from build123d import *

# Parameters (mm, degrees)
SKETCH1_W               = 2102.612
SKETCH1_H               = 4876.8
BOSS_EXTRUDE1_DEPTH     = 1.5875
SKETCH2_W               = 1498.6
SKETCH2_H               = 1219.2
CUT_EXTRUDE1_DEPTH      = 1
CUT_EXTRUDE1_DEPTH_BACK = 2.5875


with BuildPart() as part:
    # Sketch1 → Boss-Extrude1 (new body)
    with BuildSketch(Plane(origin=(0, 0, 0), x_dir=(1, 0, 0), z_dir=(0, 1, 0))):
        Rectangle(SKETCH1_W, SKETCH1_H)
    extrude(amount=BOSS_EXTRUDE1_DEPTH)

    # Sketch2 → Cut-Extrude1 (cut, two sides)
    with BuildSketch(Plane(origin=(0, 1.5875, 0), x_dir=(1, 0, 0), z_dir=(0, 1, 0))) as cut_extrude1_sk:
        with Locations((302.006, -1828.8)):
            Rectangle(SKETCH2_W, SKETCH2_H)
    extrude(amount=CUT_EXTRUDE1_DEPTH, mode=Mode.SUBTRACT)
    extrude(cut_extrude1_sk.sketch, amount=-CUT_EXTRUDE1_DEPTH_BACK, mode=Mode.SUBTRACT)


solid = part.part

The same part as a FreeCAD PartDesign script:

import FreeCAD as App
import Part
import Sketcher
from FreeCAD import Vector
Q = App.Units.Quantity

doc = App.newDocument("Part")
body = doc.addObject("PartDesign::Body", "Body")

# Sketch on XZ plane
sketch1 = doc.addObject("Sketcher::SketchObject", "Sketch")
body.addObject(sketch1)
sketch1.AttachmentSupport = (doc.XZ_Plane, [""])
sketch1.MapMode = "FlatFace"
sketch1.addGeometry(Part.LineSegment(Vector(-1051.306, -2438.4, 0), Vector(-1051.306, 2438.4, 0)), False)
sketch1.addGeometry(Part.LineSegment(Vector(-1051.306, 2438.4, 0), Vector(1051.306, 2438.4, 0)), False)
sketch1.addGeometry(Part.LineSegment(Vector(1051.306, 2438.4, 0), Vector(1051.306, -2438.4, 0)), False)
sketch1.addGeometry(Part.LineSegment(Vector(1051.306, -2438.4, 0), Vector(-1051.306, -2438.4, 0)), False)
sketch1.addConstraint(Sketcher.Constraint("Coincident", 0, 2, 1, 1))
sketch1.addConstraint(Sketcher.Constraint("Coincident", 1, 2, 2, 1))
sketch1.addConstraint(Sketcher.Constraint("Coincident", 2, 2, 3, 1))
sketch1.addConstraint(Sketcher.Constraint("Coincident", 3, 2, 0, 1))
sketch1.addConstraint(Sketcher.Constraint("Vertical", 0))
sketch1.addConstraint(Sketcher.Constraint("Horizontal", 1))
sketch1.addConstraint(Sketcher.Constraint("Vertical", 2))
sketch1.addConstraint(Sketcher.Constraint("Horizontal", 3))
sketch1.addConstraint(Sketcher.Constraint("Symmetric", 0, 2, 2, 2, -1, 1))
sketch1.addConstraint(Sketcher.Constraint("DistanceY", 0, 1, 0, 2, Q("192 in")))
sketch1.addConstraint(Sketcher.Constraint("DistanceX", 1, 1, 1, 2, Q("82.78 in")))
pad1 = doc.addObject("PartDesign::Pad", "Pad")
body.addObject(pad1)
pad1.Profile = sketch1
pad1.Length = Q("0.0625 in")
pad1.Reversed = True

# Sketch on XZ plane
sketch2 = doc.addObject("Sketcher::SketchObject", "Sketch001")
body.addObject(sketch2)
sketch2.AttachmentSupport = (doc.XZ_Plane, [""])
sketch2.MapMode = "FlatFace"
sketch2.AttachmentOffset = App.Placement(Vector(0, 0, -0.0625 * 25.4), App.Rotation())
sketch2.addGeometry(Part.LineSegment(Vector(-447.294, 1219.2, 0), Vector(-447.294, 2438.4, 0)), False)
sketch2.addGeometry(Part.LineSegment(Vector(-447.294, 2438.4, 0), Vector(1051.306, 2438.4, 0)), False)
sketch2.addGeometry(Part.LineSegment(Vector(1051.306, 2438.4, 0), Vector(1051.306, 1219.2, 0)), False)
sketch2.addGeometry(Part.LineSegment(Vector(1051.306, 1219.2, 0), Vector(-447.294, 1219.2, 0)), False)
sketch2.addConstraint(Sketcher.Constraint("Coincident", 0, 2, 1, 1))
sketch2.addConstraint(Sketcher.Constraint("Coincident", 1, 2, 2, 1))
sketch2.addConstraint(Sketcher.Constraint("Coincident", 2, 2, 3, 1))
sketch2.addConstraint(Sketcher.Constraint("Coincident", 3, 2, 0, 1))
sketch2.addConstraint(Sketcher.Constraint("Vertical", 0))
sketch2.addConstraint(Sketcher.Constraint("Horizontal", 1))
sketch2.addConstraint(Sketcher.Constraint("Vertical", 2))
sketch2.addConstraint(Sketcher.Constraint("Horizontal", 3))
sketch2.addConstraint(Sketcher.Constraint("DistanceX", 1, 1, 1, 2, Q("59 in")))
sketch2.addConstraint(Sketcher.Constraint("DistanceY", 0, 1, 0, 2, Q("48 in")))
sketch2.addConstraint(Sketcher.Constraint("DistanceY", -1, 1, 0, 2, Q("96 in")))
sketch2.addConstraint(Sketcher.Constraint("DistanceX", 0, 2, -1, 1, Q("17.61 in")))
pocket1 = doc.addObject("PartDesign::Pocket", "Pocket")
body.addObject(pocket1)
pocket1.Profile = sketch2
pocket1.Type = "ThroughAll"
pocket1.Midplane = True

doc.recompute()
